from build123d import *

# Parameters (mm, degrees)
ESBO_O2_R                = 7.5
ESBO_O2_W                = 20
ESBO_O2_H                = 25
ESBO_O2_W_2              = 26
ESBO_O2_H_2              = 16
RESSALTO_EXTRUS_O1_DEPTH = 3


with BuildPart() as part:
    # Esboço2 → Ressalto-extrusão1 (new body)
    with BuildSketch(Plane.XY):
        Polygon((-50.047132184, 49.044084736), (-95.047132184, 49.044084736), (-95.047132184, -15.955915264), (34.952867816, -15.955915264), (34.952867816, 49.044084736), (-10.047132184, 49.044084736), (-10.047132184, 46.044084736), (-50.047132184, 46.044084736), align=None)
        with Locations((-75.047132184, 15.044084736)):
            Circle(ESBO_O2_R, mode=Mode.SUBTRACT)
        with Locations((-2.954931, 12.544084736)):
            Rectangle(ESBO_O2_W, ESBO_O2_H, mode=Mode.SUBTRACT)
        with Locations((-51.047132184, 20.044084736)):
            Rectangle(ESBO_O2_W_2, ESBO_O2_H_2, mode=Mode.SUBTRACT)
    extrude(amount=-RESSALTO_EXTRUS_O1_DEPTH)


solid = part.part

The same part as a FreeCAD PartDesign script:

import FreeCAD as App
import Part
import Sketcher
from FreeCAD import Vector
Q = App.Units.Quantity

doc = App.newDocument("Part")
body = doc.addObject("PartDesign::Body", "Body")

# Sketch on XY plane
sketch1 = body.newObject("Sketcher::SketchObject", "Sketch")
sketch1.AttachmentSupport = (doc.getObject("XY_Plane"), [""])
sketch1.MapMode = "FlatFace"
sketch1.addGeometry(Part.LineSegment(Vector(-50, 49, 0), Vector(-95, 49, 0)), False)
sketch1.addGeometry(Part.LineSegment(Vector(-95, 49, 0), Vector(-95, -16, 0)), False)
sketch1.addGeometry(Part.LineSegment(Vector(-95, -16, 0), Vector(35, -16, 0)), False)
sketch1.addGeometry(Part.LineSegment(Vector(35, -16, 0), Vector(35, 49, 0)), False)
sketch1.addGeometry(Part.LineSegment(Vector(35, 49, 0), Vector(-10, 49, 0)), False)
sketch1.addGeometry(Part.LineSegment(Vector(-10, 49, 0), Vector(-10, 46, 0)), False)
sketch1.addGeometry(Part.LineSegment(Vector(-10, 46, 0), Vector(-50, 46, 0)), False)
sketch1.addGeometry(Part.LineSegment(Vector(-50, 46, 0), Vector(-50, 49, 0)), False)
sketch1.addGeometry(Part.LineSegment(Vector(7, 0, 0), Vector(-13, 0, 0)), False)
sketch1.addGeometry(Part.LineSegment(Vector(-13, 0, 0), Vector(-13, 25, 0)), False)
sketch1.addGeometry(Part.LineSegment(Vector(-13, 25, 0), Vector(7, 25, 0)), False)
sketch1.addGeometry(Part.LineSegment(Vector(7, 25, 0), Vector(7, 0, 0)), False)
sketch1.addGeometry(Part.Circle(Vector(-75, 15, 0), Vector(0, 0, 1), 7.5), False)
sketch1.addGeometry(Part.LineSegment(Vector(-38, 12, 0), Vector(-64, 12, 0)), False)
sketch1.addGeometry(Part.LineSegment(Vector(-64, 12, 0), Vector(-64, 28, 0)), False)
sketch1.addGeometry(Part.LineSegment(Vector(-64, 28, 0), Vector(-38, 28, 0)), False)
sketch1.addGeometry(Part.LineSegment(Vector(-38, 28, 0), Vector(-38, 12, 0)), False)
sketch1.addConstraint(Sketcher.Constraint("Coincident", 0, 2, 1, 1))
sketch1.addConstraint(Sketcher.Constraint("Coincident", 1, 2, 2, 1))
sketch1.addConstraint(Sketcher.Constraint("Coincident", 2, 2, 3, 1))
sketch1.addConstraint(Sketcher.Constraint("Coincident", 3, 2, 4, 1))
sketch1.addConstraint(Sketcher.Constraint("Coincident", 4, 2, 5, 1))
sketch1.addConstraint(Sketcher.Constraint("Coincident", 5, 2, 6, 1))
sketch1.addConstraint(Sketcher.Constraint("Coincident", 6, 2, 7, 1))
sketch1.addConstraint(Sketcher.Constraint("Coincident", 7, 2, 0, 1))
sketch1.addConstraint(Sketcher.Constraint("Coincident", 8, 2, 9, 1))
sketch1.addConstraint(Sketcher.Constraint("Coincident", 9, 2, 10, 1))
sketch1.addConstraint(Sketcher.Constraint("Coincident", 10, 2, 11, 1))
sketch1.addConstraint(Sketcher.Constraint("Coincident", 11, 2, 8, 1))
sketch1.addConstraint(Sketcher.Constraint("Coincident", 13, 2, 14, 1))
sketch1.addConstraint(Sketcher.Constraint("Coincident", 14, 2, 15, 1))
sketch1.addConstraint(Sketcher.Constraint("Coincident", 15, 2, 16, 1))
sketch1.addConstraint(Sketcher.Constraint("Coincident", 16, 2, 13, 1))
sketch1.addConstraint(Sketcher.Constraint("Horizontal", 0))
sketch1.addConstraint(Sketcher.Constraint("Vertical", 1))
sketch1.addConstraint(Sketcher.Constraint("Horizontal", 2))
sketch1.addConstraint(Sketcher.Constraint("Vertical", 3))
sketch1.addConstraint(Sketcher.Constraint("Horizontal", 4))
sketch1.addConstraint(Sketcher.Constraint("Vertical", 5))
sketch1.addConstraint(Sketcher.Constraint("Horizontal", 6))
sketch1.addConstraint(Sketcher.Constraint("Vertical", 7))
sketch1.addConstraint(Sketcher.Constraint("Horizontal", 8))
sketch1.addConstraint(Sketcher.Constraint("Vertical", 9))
sketch1.addConstraint(Sketcher.Constraint("Horizontal", 10))
sketch1.addConstraint(Sketcher.Constraint("Vertical", 11))
sketch1.addConstraint(Sketcher.Constraint("Horizontal", 13))
sketch1.addConstraint(Sketcher.Constraint("Vertical", 14))
sketch1.addConstraint(Sketcher.Constraint("Horizontal", 15))
sketch1.addConstraint(Sketcher.Constraint("Vertical", 16))
sketch1.addConstraint(Sketcher.Constraint("Horizontal", 0, 2, 3, 2))
sketch1.addConstraint(Sketcher.Constraint("Equal", 0, 4))
sketch1.addConstraint(Sketcher.Constraint("Diameter", 12, Q("15 mm")))
sketch1.addConstraint(Sketcher.Constraint("DistanceX", 0, 2, 0, 1, Q("45 mm")))
sketch1.addConstraint(Sketcher.Constraint("DistanceX", 2, 1, 2, 2, Q("130 mm")))
sketch1.addConstraint(Sketcher.Constraint("DistanceX", 8, 2, 8, 1, Q("20 mm")))
sketch1.addConstraint(Sketcher.Constraint("DistanceX", 13, 2, 13, 1, Q("26 mm")))
sketch1.addConstraint(Sketcher.Constraint("DistanceY", 1, 2, 1, 1, Q("65 mm")))
sketch1.addConstraint(Sketcher.Constraint("DistanceY", 5, 2, 5, 1, Q("3 mm")))
sketch1.addConstraint(Sketcher.Constraint("DistanceY", 9, 1, 9, 2, Q("25 mm")))
sketch1.addConstraint(Sketcher.Constraint("DistanceY", 14, 1, 14, 2, Q("16 mm")))
sketch1.addConstraint(Sketcher.Constraint("DistanceX", 0, 2, 12, 3, Q("20 mm")))
sketch1.addConstraint(Sketcher.Constraint("DistanceY", 12, 3, 0, 2, Q("34 mm")))
sketch1.addConstraint(Sketcher.Constraint("DistanceY", 8, 2, 5, 2, Q("46 mm")))
sketch1.addConstraint(Sketcher.Constraint("DistanceX", 12, 3, 13, 2, Q("11 mm")))
sketch1.addConstraint(Sketcher.Constraint("DistanceY", 13, 2, 12, 3, Q("3 mm")))
sketch1.addConstraint(Sketcher.Constraint("DistanceX", 8, 2, 5, 2, Q("2.907799 mm")))
sketch1.addConstraint(Sketcher.Constraint("DistanceX", 8, 2, -1, 1, Q("12.954931 mm")))
sketch1.addConstraint(Sketcher.Constraint("DistanceY", -1, 1, 12, 3, Q("15.044085 mm")))
pad1 = body.newObject("PartDesign::Pad", "Pad")
pad1.Profile = sketch1
pad1.Length = 3
pad1.Reversed = True

doc.recompute()
